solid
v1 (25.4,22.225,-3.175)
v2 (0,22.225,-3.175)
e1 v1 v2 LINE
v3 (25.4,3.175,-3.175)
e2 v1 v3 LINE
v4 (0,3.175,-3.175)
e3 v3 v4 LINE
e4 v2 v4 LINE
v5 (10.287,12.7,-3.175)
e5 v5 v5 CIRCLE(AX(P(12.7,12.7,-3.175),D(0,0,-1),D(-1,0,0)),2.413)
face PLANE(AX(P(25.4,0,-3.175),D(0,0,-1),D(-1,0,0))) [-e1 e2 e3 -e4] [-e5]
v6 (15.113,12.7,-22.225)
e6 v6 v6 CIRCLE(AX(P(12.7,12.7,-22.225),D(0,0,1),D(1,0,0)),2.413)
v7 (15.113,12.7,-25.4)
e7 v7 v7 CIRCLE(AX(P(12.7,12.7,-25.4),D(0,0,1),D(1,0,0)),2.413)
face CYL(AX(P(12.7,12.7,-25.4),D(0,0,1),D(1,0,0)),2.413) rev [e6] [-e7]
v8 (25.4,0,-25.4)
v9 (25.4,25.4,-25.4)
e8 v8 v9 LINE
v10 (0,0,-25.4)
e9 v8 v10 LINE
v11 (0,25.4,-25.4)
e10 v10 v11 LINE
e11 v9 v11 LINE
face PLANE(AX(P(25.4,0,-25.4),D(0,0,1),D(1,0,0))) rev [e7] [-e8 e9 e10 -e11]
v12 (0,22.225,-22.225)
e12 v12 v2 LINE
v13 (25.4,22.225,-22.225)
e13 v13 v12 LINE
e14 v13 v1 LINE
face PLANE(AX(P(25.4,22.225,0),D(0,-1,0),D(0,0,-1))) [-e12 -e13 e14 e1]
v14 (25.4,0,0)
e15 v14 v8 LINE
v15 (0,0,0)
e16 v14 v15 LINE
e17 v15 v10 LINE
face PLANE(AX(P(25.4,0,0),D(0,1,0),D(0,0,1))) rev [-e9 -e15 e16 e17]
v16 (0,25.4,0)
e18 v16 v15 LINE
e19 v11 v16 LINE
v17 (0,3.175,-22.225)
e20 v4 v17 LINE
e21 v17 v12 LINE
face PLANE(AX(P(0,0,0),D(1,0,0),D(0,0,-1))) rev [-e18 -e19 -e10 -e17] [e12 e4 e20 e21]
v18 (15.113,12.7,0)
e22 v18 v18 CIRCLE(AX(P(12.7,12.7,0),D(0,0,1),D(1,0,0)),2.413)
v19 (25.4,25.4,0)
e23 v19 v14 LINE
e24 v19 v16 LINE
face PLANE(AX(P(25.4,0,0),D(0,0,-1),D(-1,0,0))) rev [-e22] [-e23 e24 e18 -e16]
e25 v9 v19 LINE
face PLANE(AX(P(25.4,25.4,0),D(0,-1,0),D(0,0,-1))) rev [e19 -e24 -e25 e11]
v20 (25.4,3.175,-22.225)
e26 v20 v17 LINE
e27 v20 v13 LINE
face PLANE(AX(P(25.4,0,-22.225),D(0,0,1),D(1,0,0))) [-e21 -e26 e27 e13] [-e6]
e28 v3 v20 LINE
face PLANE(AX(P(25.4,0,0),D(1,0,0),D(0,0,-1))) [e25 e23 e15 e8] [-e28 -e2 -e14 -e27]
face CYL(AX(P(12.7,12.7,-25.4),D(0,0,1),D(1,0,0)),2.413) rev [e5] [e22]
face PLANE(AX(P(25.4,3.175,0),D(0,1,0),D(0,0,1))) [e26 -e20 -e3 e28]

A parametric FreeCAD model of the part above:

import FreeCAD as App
import Part
import Sketcher
from FreeCAD import Vector
Q = App.Units.Quantity

doc = App.newDocument("Part")
body = doc.addObject("PartDesign::Body", "Body")

# Sketch on YZ plane
sketch1 = body.newObject("Sketcher::SketchObject", "Sketch")
sketch1.AttachmentSupport = (doc.getObject("YZ_Plane"), [""])
sketch1.MapMode = "FlatFace"
sketch1.addGeometry([
    Part.LineSegment(Vector(25, 0, 0), Vector(0, 0, 0)),  # 0
    Part.LineSegment(Vector(0, 0, 0), Vector(0, -25, 0)),  # 1
    Part.LineSegment(Vector(0, -25, 0), Vector(25, -25, 0)),  # 2
    Part.LineSegment(Vector(25, -25, 0), Vector(25, 0, 0)),  # 3
    Part.LineSegment(Vector(3, -22, 0), Vector(3, -3, 0)),  # 4
    Part.LineSegment(Vector(3, -3, 0), Vector(22, -3, 0)),  # 5
    Part.LineSegment(Vector(22, -3, 0), Vector(22, -22, 0)),  # 6
    Part.LineSegment(Vector(22, -22, 0), Vector(3, -22, 0)),  # 7
], False)
sketch1.addConstraint([
    Sketcher.Constraint("Coincident", 0, 2, 1, 1),
    Sketcher.Constraint("Coincident", 1, 2, 2, 1),
    Sketcher.Constraint("Coincident", 2, 2, 3, 1),
    Sketcher.Constraint("Coincident", 3, 2, 0, 1),
    Sketcher.Constraint("Coincident", 4, 2, 5, 1),
    Sketcher.Constraint("Coincident", 5, 2, 6, 1),
    Sketcher.Constraint("Coincident", 6, 2, 7, 1),
    Sketcher.Constraint("Coincident", 7, 2, 4, 1),
    Sketcher.Constraint("Horizontal", 0),
    Sketcher.Constraint("Vertical", 1),
    Sketcher.Constraint("Horizontal", 2),
    Sketcher.Constraint("Vertical", 3),
    Sketcher.Constraint("Vertical", 4),
    Sketcher.Constraint("Horizontal", 5),
    Sketcher.Constraint("Vertical", 6),
    Sketcher.Constraint("Horizontal", 7),
    Sketcher.Constraint("Coincident", 0, 2, -1, 1),
    Sketcher.Constraint("Equal", 2, 1),
    Sketcher.Constraint("Equal", 7, 4),
    Sketcher.Constraint("DistanceX", 0, 2, 0, 1, Q("1 in")),
    Sketcher.Constraint("DistanceX", 5, 1, 5, 2, Q("0.75 in")),
    Sketcher.Constraint("DistanceX", -1, 1, 4, 2, Q("0.125 in")),
    Sketcher.Constraint("DistanceY", 4, 2, -1, 1, Q("0.125 in")),
])
pad1 = body.newObject("PartDesign::Pad", "Pad")
pad1.Profile = sketch1
pad1.Length = Q("1 in")

# Sketch on XY plane
sketch2 = body.newObject("Sketcher::SketchObject", "Sketch001")
sketch2.AttachmentSupport = (doc.getObject("XY_Plane"), [""])
sketch2.MapMode = "FlatFace"
sketch2.addGeometry(Part.Circle(Vector(12.7, 12.7, 0), Vector(0, 0, 1), 2.4), False)
sketch2.addConstraint([
    Sketcher.Constraint("Diameter", 0, Q("0.19 in")),
    Sketcher.Constraint("DistanceX", -1, 1, 0, 3, Q("0.5 in")),
    Sketcher.Constraint("DistanceY", -1, 1, 0, 3, Q("0.5 in")),
])
pocket1 = body.newObject("PartDesign::Pocket", "Pocket")
pocket1.Profile = sketch2
pocket1.Type = "ThroughAll"

doc.recompute()
